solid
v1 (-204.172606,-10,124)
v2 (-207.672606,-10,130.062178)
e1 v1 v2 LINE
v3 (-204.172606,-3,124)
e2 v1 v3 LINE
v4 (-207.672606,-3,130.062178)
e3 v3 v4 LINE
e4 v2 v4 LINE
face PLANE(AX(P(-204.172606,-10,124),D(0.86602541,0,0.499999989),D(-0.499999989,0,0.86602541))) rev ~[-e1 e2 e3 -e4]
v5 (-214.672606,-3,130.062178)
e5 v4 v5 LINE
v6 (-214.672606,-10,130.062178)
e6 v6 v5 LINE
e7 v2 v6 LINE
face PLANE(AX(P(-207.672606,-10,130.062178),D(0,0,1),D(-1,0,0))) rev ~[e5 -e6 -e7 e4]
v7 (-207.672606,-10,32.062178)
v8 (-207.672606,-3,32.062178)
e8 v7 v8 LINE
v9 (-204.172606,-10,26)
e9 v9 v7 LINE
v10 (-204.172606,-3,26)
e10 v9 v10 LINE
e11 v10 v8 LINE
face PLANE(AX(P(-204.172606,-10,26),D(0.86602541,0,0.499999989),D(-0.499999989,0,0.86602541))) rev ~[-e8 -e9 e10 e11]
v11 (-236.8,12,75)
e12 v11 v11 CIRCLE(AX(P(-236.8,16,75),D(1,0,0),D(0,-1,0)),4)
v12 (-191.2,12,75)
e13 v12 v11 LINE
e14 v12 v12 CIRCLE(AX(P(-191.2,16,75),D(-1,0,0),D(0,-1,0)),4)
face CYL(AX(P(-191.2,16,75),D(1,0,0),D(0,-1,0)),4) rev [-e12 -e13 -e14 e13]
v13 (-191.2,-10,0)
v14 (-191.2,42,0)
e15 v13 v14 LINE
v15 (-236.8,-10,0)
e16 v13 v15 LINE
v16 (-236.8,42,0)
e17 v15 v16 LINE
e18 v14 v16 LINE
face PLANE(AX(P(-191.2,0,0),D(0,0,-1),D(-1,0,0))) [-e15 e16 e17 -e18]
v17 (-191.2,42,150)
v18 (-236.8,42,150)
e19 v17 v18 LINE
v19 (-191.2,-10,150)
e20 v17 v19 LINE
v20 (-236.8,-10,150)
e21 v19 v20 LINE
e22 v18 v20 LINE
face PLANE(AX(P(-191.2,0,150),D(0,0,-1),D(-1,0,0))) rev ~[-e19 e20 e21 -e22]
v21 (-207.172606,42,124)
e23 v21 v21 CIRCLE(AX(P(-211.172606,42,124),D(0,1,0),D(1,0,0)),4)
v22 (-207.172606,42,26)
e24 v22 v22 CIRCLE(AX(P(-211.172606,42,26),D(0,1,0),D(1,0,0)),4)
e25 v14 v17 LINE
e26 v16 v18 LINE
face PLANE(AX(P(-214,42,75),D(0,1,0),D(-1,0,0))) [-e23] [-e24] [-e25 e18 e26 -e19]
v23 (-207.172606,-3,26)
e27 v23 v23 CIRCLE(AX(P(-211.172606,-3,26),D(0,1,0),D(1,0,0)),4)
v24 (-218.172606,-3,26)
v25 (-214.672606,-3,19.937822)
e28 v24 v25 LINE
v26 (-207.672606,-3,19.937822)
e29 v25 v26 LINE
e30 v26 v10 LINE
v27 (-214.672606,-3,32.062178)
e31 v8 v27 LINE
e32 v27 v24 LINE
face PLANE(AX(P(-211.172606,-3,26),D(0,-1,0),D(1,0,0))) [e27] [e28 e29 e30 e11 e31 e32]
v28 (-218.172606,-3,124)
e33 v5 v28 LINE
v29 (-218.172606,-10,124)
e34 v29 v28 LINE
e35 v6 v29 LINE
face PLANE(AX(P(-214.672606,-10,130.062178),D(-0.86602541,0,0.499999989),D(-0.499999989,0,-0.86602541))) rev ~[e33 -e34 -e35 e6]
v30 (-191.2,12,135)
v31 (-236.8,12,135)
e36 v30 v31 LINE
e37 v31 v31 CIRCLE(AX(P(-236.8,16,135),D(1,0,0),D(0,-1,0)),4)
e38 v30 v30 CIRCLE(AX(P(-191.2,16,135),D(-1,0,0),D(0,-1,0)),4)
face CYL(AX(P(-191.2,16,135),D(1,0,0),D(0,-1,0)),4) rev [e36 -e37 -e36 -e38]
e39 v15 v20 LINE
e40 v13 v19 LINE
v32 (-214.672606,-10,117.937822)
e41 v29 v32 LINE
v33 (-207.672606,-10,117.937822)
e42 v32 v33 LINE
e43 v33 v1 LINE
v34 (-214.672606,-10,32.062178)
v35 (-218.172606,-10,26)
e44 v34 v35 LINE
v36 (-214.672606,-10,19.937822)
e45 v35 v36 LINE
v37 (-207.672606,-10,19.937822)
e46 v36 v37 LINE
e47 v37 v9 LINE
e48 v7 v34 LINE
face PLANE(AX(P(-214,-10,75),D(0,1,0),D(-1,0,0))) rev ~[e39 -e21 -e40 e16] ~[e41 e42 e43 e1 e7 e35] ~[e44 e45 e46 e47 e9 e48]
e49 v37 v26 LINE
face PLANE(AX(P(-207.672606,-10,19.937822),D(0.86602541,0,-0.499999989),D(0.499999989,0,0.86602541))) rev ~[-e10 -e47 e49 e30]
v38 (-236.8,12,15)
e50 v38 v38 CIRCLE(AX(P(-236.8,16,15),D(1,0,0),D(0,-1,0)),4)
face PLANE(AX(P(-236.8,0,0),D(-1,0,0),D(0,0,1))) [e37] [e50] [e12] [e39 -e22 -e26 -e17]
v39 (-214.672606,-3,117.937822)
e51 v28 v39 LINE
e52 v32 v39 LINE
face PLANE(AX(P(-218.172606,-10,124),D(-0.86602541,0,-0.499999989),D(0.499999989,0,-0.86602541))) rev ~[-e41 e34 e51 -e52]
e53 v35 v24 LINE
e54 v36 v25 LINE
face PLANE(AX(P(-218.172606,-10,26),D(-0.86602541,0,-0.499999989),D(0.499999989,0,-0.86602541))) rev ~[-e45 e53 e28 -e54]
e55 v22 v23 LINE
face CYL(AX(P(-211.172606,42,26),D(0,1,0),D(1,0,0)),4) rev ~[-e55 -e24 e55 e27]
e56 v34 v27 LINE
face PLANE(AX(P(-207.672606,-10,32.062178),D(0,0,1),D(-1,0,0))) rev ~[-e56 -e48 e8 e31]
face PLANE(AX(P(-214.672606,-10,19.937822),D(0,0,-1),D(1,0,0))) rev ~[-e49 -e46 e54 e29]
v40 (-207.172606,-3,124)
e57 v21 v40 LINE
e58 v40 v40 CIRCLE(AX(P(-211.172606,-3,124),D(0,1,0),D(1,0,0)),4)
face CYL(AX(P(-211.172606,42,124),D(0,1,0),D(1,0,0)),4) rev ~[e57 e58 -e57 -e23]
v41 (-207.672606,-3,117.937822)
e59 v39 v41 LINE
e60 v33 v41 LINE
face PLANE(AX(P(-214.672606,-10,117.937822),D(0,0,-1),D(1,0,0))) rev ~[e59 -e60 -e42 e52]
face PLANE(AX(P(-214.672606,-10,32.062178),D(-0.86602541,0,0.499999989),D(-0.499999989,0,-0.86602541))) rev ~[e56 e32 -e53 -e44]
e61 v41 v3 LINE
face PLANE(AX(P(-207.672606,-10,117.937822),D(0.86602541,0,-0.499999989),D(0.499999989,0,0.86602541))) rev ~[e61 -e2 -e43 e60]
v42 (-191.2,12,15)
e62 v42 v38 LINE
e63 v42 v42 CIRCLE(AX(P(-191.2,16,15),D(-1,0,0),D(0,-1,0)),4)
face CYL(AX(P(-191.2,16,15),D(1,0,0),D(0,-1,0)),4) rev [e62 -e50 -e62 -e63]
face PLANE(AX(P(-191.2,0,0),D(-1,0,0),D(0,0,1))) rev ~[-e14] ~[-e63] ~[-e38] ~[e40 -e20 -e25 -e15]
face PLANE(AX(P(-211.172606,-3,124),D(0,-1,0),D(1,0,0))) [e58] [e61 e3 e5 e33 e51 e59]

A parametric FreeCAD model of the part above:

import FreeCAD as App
import Part
import Sketcher
Q = App.Units.Quantity

doc = App.newDocument("Part")
params = doc.addObject("Spreadsheet::Sheet", "Params")
for row, (alias, value) in enumerate([
    ("sketch1_height", "150 mm"),
    ("sketch1_width", "45.6 mm"),
    ("pad1_length", "42 mm"),
    ("pad1_length2", "10 mm"),
    ("sketch2_diameter", "8 mm"),
    ("sketch3_width", "7 mm"),
    ("sketch3_length", "7 mm"),
    ("pocket2_length", "7 mm"),
    ("sketch4_width", "7 mm"),
    ("sketch4_length", "7 mm"),
    ("pocket3_length", "7 mm"),
    ("sketch5_diameter", "8 mm"),
], start=1):
    params.set(f"A{row}", alias)
    params.set(f"B{row}", "=" + value)
    params.setAlias(f"B{row}", alias)

body = doc.addObject("PartDesign::Body", "Body")

sketch1 = body.newObject("Sketcher::SketchObject", "Sketch")
sketch1.AttachmentSupport = (doc.getObject("XZ_Plane"), [""])
sketch1.MapMode = "FlatFace"
sketch1.addGeometry([
    Part.LineSegment(App.Vector(-191, 150, 0), App.Vector(-191, 0, 0)),
    Part.LineSegment(App.Vector(-191, 0, 0), App.Vector(-237, 0, 0)),
    Part.LineSegment(App.Vector(-237, 0, 0), App.Vector(-237, 150, 0)),
    Part.LineSegment(App.Vector(-237, 150, 0), App.Vector(-191, 150, 0)),
], False)
sketch1.addConstraint([
    Sketcher.Constraint("Coincident", 0, 2, 1, 1),
    Sketcher.Constraint("Coincident", 1, 2, 2, 1),
    Sketcher.Constraint("Coincident", 2, 2, 3, 1),
    Sketcher.Constraint("Coincident", 3, 2, 0, 1),
    Sketcher.Constraint("Vertical", 0),
    Sketcher.Constraint("Horizontal", 1),
    Sketcher.Constraint("Vertical", 2),
    Sketcher.Constraint("Horizontal", 3),
    Sketcher.Constraint("PointOnObject", 0, 2, -1),
    Sketcher.Constraint("DistanceY", 0, 2, 0, 1, Q("150 mm")),
    Sketcher.Constraint("DistanceX", 1, 2, 1, 1, Q("45.6 mm")),
    Sketcher.Constraint("DistanceX", 0, 2, -1, 1, Q("191.2 mm")),
])
sketch1.setExpression("Constraints[9]", "Params.sketch1_height")
sketch1.setExpression("Constraints[10]", "Params.sketch1_width")
pad1 = body.newObject("PartDesign::Pad", "Pad")
pad1.Profile = sketch1
pad1.Type = "TwoLengths"
pad1.setExpression("Length", "Params.pad1_length")
pad1.setExpression("Length2", "Params.pad1_length2")
pad1.Reversed = True

sketch2 = body.newObject("Sketcher::SketchObject", "Sketch001")
sketch2.AttachmentSupport = (doc.getObject("XZ_Plane"), [""])
sketch2.MapMode = "FlatFace"
sketch2.AttachmentOffset = App.Placement(App.Vector(0, 0, -42), App.Rotation())
sketch2.addGeometry([
    Part.Circle(App.Vector(-211.2, 26, 0), App.Vector(0, 0, 1), 4),
    Part.Circle(App.Vector(-211.2, 124, 0), App.Vector(0, 0, 1), 4),
], False)
sketch2.addConstraint([
    Sketcher.Constraint("Equal", 0, 1),
    Sketcher.Constraint("Vertical", 0, 3, 1, 3),
    Sketcher.Constraint("Diameter", 0, Q("8 mm")),
    Sketcher.Constraint("DistanceY", -1, 1, 0, 3, Q("26 mm")),
    Sketcher.Constraint("DistanceY", -1, 1, 1, 3, Q("124 mm")),
    Sketcher.Constraint("DistanceX", 0, 3, -1, 1, Q("211.172606 mm")),
])
sketch2.setExpression("Constraints[2]", "Params.sketch2_diameter")
pocket1 = body.newObject("PartDesign::Pocket", "Pocket")
pocket1.Profile = sketch2
pocket1.Type = "ThroughAll"
pocket1.Reversed = True

sketch3 = body.newObject("Sketcher::SketchObject", "Sketch002")
sketch3.AttachmentSupport = (doc.getObject("XZ_Plane"), [""])
sketch3.MapMode = "FlatFace"
sketch3.AttachmentOffset = App.Placement(App.Vector(0, 0, 10), App.Rotation())
sketch3.addGeometry([
    Part.LineSegment(App.Vector(-208, 118, 0), App.Vector(-204, 124, 0)),
    Part.LineSegment(App.Vector(-204, 124, 0), App.Vector(-208, 130, 0)),
    Part.LineSegment(App.Vector(-208, 130, 0), App.Vector(-215, 130, 0)),
    Part.LineSegment(App.Vector(-215, 130, 0), App.Vector(-218, 124, 0)),
    Part.LineSegment(App.Vector(-218, 124, 0), App.Vector(-215, 118, 0)),
    Part.LineSegment(App.Vector(-215, 118, 0), App.Vector(-208, 118, 0)),
    Part.LineSegment(App.Vector(-208, 20, 0), App.Vector(-204, 26, 0)),
    Part.LineSegment(App.Vector(-204, 26, 0), App.Vector(-208, 32, 0)),
    Part.LineSegment(App.Vector(-208, 32, 0), App.Vector(-215, 32, 0)),
    Part.LineSegment(App.Vector(-215, 32, 0), App.Vector(-218, 26, 0)),
    Part.LineSegment(App.Vector(-218, 26, 0), App.Vector(-215, 20, 0)),
    Part.LineSegment(App.Vector(-215, 20, 0), App.Vector(-208, 20, 0)),
], False)
sketch3.addConstraint([
    Sketcher.Constraint("Coincident", 0, 2, 1, 1),
    Sketcher.Constraint("Coincident", 1, 2, 2, 1),
    Sketcher.Constraint("Coincident", 2, 2, 3, 1),
    Sketcher.Constraint("Coincident", 3, 2, 4, 1),
    Sketcher.Constraint("Coincident", 4, 2, 5, 1),
    Sketcher.Constraint("Coincident", 5, 2, 0, 1),
    Sketcher.Constraint("Coincident", 6, 2, 7, 1),
    Sketcher.Constraint("Coincident", 7, 2, 8, 1),
    Sketcher.Constraint("Coincident", 8, 2, 9, 1),
    Sketcher.Constraint("Coincident", 9, 2, 10, 1),
    Sketcher.Constraint("Coincident", 10, 2, 11, 1),
    Sketcher.Constraint("Coincident", 11, 2, 6, 1),
    Sketcher.Constraint("Horizontal", 2),
    Sketcher.Constraint("Horizontal", 5),
    Sketcher.Constraint("Horizontal", 8),
    Sketcher.Constraint("Horizontal", 11),
    Sketcher.Constraint("Parallel", 0, 3),
    Sketcher.Constraint("Parallel", 1, 4),
    Sketcher.Constraint("Parallel", 3, 6),
    Sketcher.Constraint("Parallel", 4, 7),
    Sketcher.Constraint("Parallel", 6, 9),
    Sketcher.Constraint("Parallel", 7, 10),
    Sketcher.Constraint("Horizontal", 0, 2, 3, 2),
    Sketcher.Constraint("Horizontal", 6, 2, 9, 2),
    Sketcher.Constraint("Vertical", 2, 2, 4, 2),
    Sketcher.Constraint("Vertical", 1, 2, 5, 2),
    Sketcher.Constraint("Vertical", 0, 2, 6, 2),
    Sketcher.Constraint("Vertical", 5, 2, 7, 2),
    Sketcher.Constraint("Vertical", 4, 2, 8, 2),
    Sketcher.Constraint("Vertical", 8, 2, 10, 2),
    Sketcher.Constraint("DistanceX", 2, 2, 2, 1, Q("7 mm")),
    Sketcher.Constraint("Angle", 0, Q("60.000001 deg")),
    Sketcher.Constraint("Distance", 0, Q("7 mm")),
    Sketcher.Constraint("DistanceY", -1, 1, 0, 2, Q("124 mm")),
    Sketcher.Constraint("DistanceY", -1, 1, 6, 2, Q("26 mm")),
    Sketcher.Constraint("DistanceX", 0, 2, -1, 1, Q("204.172606 mm")),
])
sketch3.setExpression("Constraints[30]", "Params.sketch3_width")
sketch3.setExpression("Constraints[32]", "Params.sketch3_length")
pocket2 = body.newObject("PartDesign::Pocket", "Pocket001")
pocket2.Profile = sketch3
pocket2.setExpression("Length", "Params.pocket2_length")

sketch4 = body.newObject("Sketcher::SketchObject", "Sketch003")
sketch4.AttachmentSupport = (doc.getObject("XZ_Plane"), [""])
sketch4.MapMode = "FlatFace"
sketch4.AttachmentOffset = App.Placement(App.Vector(0, 0, 10), App.Rotation())
sketch4.addGeometry([
    Part.LineSegment(App.Vector(-208, 118, 0), App.Vector(-204, 124, 0)),
    Part.LineSegment(App.Vector(-204, 124, 0), App.Vector(-208, 130, 0)),
    Part.LineSegment(App.Vector(-208, 130, 0), App.Vector(-215, 130, 0)),
    Part.LineSegment(App.Vector(-215, 130, 0), App.Vector(-218, 124, 0)),
    Part.LineSegment(App.Vector(-218, 124, 0), App.Vector(-215, 118, 0)),
    Part.LineSegment(App.Vector(-215, 118, 0), App.Vector(-208, 118, 0)),
    Part.LineSegment(App.Vector(-208, 20, 0), App.Vector(-204, 26, 0)),
    Part.LineSegment(App.Vector(-204, 26, 0), App.Vector(-208, 32, 0)),
    Part.LineSegment(App.Vector(-208, 32, 0), App.Vector(-215, 32, 0)),
    Part.LineSegment(App.Vector(-215, 32, 0), App.Vector(-218, 26, 0)),
    Part.LineSegment(App.Vector(-218, 26, 0), App.Vector(-215, 20, 0)),
    Part.LineSegment(App.Vector(-215, 20, 0), App.Vector(-208, 20, 0)),
], False)
sketch4.addConstraint([
    Sketcher.Constraint("Coincident", 0, 2, 1, 1),
    Sketcher.Constraint("Coincident", 1, 2, 2, 1),
    Sketcher.Constraint("Coincident", 2, 2, 3, 1),
    Sketcher.Constraint("Coincident", 3, 2, 4, 1),
    Sketcher.Constraint("Coincident", 4, 2, 5, 1),
    Sketcher.Constraint("Coincident", 5, 2, 0, 1),
    Sketcher.Constraint("Coincident", 6, 2, 7, 1),
    Sketcher.Constraint("Coincident", 7, 2, 8, 1),
    Sketcher.Constraint("Coincident", 8, 2, 9, 1),
    Sketcher.Constraint("Coincident", 9, 2, 10, 1),
    Sketcher.Constraint("Coincident", 10, 2, 11, 1),
    Sketcher.Constraint("Coincident", 11, 2, 6, 1),
    Sketcher.Constraint("Horizontal", 2),
    Sketcher.Constraint("Horizontal", 5),
    Sketcher.Constraint("Horizontal", 8),
    Sketcher.Constraint("Horizontal", 11),
    Sketcher.Constraint("Parallel", 0, 3),
    Sketcher.Constraint("Parallel", 1, 4),
    Sketcher.Constraint("Parallel", 3, 6),
    Sketcher.Constraint("Parallel", 4, 7),
    Sketcher.Constraint("Parallel", 6, 9),
    Sketcher.Constraint("Parallel", 7, 10),
    Sketcher.Constraint("Horizontal", 0, 2, 3, 2),
    Sketcher.Constraint("Horizontal", 6, 2, 9, 2),
    Sketcher.Constraint("Vertical", 2, 2, 4, 2),
    Sketcher.Constraint("Vertical", 1, 2, 5, 2),
    Sketcher.Constraint("Vertical", 0, 2, 6, 2),
    Sketcher.Constraint("Vertical", 5, 2, 7, 2),
    Sketcher.Constraint("Vertical", 4, 2, 8, 2),
    Sketcher.Constraint("Vertical", 8, 2, 10, 2),
    Sketcher.Constraint("DistanceX", 2, 2, 2, 1, Q("7 mm")),
    Sketcher.Constraint("Angle", 0, Q("60.000001 deg")),
    Sketcher.Constraint("Distance", 0, Q("7 mm")),
    Sketcher.Constraint("DistanceY", -1, 1, 0, 2, Q("124 mm")),
    Sketcher.Constraint("DistanceY", -1, 1, 6, 2, Q("26 mm")),
    Sketcher.Constraint("DistanceX", 0, 2, -1, 1, Q("204.172606 mm")),
])
sketch4.setExpression("Constraints[30]", "Params.sketch4_width")
sketch4.setExpression("Constraints[32]", "Params.sketch4_length")
pocket3 = body.newObject("PartDesign::Pocket", "Pocket002")
pocket3.Profile = sketch4
pocket3.setExpression("Length", "Params.pocket3_length")

sketch5 = body.newObject("Sketcher::SketchObject", "Sketch004")
sketch5.AttachmentSupport = (doc.getObject("YZ_Plane"), [""])
sketch5.MapMode = "FlatFace"
sketch5.AttachmentOffset = App.Placement(App.Vector(0, 0, -191.2), App.Rotation())
sketch5.addGeometry([
    Part.Circle(App.Vector(16, 135, 0), App.Vector(0, 0, 1), 4),
    Part.Circle(App.Vector(16, 75, 0), App.Vector(0, 0, 1), 4),
    Part.Circle(App.Vector(16, 15, 0), App.Vector(0, 0, 1), 4),
], False)
sketch5.addConstraint([
    Sketcher.Constraint("Equal", 0, 1),
    Sketcher.Constraint("Equal", 1, 2),
    Sketcher.Constraint("Vertical", 0, 3, 1, 3),
    Sketcher.Constraint("Vertical", 1, 3, 2, 3),
    Sketcher.Constraint("Diameter", 0, Q("8 mm")),
    Sketcher.Constraint("DistanceX", -1, 1, 0, 3, Q("16 mm")),
    Sketcher.Constraint("DistanceY", -1, 1, 0, 3, Q("135 mm")),
    Sketcher.Constraint("DistanceY", -1, 1, 1, 3, Q("75 mm")),
    Sketcher.Constraint("DistanceY", -1, 1, 2, 3, Q("15 mm")),
])
sketch5.setExpression("Constraints[4]", "Params.sketch5_diameter")
pocket4 = body.newObject("PartDesign::Pocket", "Pocket003")
pocket4.Profile = sketch5
pocket4.Type = "ThroughAll"

doc.recompute()
